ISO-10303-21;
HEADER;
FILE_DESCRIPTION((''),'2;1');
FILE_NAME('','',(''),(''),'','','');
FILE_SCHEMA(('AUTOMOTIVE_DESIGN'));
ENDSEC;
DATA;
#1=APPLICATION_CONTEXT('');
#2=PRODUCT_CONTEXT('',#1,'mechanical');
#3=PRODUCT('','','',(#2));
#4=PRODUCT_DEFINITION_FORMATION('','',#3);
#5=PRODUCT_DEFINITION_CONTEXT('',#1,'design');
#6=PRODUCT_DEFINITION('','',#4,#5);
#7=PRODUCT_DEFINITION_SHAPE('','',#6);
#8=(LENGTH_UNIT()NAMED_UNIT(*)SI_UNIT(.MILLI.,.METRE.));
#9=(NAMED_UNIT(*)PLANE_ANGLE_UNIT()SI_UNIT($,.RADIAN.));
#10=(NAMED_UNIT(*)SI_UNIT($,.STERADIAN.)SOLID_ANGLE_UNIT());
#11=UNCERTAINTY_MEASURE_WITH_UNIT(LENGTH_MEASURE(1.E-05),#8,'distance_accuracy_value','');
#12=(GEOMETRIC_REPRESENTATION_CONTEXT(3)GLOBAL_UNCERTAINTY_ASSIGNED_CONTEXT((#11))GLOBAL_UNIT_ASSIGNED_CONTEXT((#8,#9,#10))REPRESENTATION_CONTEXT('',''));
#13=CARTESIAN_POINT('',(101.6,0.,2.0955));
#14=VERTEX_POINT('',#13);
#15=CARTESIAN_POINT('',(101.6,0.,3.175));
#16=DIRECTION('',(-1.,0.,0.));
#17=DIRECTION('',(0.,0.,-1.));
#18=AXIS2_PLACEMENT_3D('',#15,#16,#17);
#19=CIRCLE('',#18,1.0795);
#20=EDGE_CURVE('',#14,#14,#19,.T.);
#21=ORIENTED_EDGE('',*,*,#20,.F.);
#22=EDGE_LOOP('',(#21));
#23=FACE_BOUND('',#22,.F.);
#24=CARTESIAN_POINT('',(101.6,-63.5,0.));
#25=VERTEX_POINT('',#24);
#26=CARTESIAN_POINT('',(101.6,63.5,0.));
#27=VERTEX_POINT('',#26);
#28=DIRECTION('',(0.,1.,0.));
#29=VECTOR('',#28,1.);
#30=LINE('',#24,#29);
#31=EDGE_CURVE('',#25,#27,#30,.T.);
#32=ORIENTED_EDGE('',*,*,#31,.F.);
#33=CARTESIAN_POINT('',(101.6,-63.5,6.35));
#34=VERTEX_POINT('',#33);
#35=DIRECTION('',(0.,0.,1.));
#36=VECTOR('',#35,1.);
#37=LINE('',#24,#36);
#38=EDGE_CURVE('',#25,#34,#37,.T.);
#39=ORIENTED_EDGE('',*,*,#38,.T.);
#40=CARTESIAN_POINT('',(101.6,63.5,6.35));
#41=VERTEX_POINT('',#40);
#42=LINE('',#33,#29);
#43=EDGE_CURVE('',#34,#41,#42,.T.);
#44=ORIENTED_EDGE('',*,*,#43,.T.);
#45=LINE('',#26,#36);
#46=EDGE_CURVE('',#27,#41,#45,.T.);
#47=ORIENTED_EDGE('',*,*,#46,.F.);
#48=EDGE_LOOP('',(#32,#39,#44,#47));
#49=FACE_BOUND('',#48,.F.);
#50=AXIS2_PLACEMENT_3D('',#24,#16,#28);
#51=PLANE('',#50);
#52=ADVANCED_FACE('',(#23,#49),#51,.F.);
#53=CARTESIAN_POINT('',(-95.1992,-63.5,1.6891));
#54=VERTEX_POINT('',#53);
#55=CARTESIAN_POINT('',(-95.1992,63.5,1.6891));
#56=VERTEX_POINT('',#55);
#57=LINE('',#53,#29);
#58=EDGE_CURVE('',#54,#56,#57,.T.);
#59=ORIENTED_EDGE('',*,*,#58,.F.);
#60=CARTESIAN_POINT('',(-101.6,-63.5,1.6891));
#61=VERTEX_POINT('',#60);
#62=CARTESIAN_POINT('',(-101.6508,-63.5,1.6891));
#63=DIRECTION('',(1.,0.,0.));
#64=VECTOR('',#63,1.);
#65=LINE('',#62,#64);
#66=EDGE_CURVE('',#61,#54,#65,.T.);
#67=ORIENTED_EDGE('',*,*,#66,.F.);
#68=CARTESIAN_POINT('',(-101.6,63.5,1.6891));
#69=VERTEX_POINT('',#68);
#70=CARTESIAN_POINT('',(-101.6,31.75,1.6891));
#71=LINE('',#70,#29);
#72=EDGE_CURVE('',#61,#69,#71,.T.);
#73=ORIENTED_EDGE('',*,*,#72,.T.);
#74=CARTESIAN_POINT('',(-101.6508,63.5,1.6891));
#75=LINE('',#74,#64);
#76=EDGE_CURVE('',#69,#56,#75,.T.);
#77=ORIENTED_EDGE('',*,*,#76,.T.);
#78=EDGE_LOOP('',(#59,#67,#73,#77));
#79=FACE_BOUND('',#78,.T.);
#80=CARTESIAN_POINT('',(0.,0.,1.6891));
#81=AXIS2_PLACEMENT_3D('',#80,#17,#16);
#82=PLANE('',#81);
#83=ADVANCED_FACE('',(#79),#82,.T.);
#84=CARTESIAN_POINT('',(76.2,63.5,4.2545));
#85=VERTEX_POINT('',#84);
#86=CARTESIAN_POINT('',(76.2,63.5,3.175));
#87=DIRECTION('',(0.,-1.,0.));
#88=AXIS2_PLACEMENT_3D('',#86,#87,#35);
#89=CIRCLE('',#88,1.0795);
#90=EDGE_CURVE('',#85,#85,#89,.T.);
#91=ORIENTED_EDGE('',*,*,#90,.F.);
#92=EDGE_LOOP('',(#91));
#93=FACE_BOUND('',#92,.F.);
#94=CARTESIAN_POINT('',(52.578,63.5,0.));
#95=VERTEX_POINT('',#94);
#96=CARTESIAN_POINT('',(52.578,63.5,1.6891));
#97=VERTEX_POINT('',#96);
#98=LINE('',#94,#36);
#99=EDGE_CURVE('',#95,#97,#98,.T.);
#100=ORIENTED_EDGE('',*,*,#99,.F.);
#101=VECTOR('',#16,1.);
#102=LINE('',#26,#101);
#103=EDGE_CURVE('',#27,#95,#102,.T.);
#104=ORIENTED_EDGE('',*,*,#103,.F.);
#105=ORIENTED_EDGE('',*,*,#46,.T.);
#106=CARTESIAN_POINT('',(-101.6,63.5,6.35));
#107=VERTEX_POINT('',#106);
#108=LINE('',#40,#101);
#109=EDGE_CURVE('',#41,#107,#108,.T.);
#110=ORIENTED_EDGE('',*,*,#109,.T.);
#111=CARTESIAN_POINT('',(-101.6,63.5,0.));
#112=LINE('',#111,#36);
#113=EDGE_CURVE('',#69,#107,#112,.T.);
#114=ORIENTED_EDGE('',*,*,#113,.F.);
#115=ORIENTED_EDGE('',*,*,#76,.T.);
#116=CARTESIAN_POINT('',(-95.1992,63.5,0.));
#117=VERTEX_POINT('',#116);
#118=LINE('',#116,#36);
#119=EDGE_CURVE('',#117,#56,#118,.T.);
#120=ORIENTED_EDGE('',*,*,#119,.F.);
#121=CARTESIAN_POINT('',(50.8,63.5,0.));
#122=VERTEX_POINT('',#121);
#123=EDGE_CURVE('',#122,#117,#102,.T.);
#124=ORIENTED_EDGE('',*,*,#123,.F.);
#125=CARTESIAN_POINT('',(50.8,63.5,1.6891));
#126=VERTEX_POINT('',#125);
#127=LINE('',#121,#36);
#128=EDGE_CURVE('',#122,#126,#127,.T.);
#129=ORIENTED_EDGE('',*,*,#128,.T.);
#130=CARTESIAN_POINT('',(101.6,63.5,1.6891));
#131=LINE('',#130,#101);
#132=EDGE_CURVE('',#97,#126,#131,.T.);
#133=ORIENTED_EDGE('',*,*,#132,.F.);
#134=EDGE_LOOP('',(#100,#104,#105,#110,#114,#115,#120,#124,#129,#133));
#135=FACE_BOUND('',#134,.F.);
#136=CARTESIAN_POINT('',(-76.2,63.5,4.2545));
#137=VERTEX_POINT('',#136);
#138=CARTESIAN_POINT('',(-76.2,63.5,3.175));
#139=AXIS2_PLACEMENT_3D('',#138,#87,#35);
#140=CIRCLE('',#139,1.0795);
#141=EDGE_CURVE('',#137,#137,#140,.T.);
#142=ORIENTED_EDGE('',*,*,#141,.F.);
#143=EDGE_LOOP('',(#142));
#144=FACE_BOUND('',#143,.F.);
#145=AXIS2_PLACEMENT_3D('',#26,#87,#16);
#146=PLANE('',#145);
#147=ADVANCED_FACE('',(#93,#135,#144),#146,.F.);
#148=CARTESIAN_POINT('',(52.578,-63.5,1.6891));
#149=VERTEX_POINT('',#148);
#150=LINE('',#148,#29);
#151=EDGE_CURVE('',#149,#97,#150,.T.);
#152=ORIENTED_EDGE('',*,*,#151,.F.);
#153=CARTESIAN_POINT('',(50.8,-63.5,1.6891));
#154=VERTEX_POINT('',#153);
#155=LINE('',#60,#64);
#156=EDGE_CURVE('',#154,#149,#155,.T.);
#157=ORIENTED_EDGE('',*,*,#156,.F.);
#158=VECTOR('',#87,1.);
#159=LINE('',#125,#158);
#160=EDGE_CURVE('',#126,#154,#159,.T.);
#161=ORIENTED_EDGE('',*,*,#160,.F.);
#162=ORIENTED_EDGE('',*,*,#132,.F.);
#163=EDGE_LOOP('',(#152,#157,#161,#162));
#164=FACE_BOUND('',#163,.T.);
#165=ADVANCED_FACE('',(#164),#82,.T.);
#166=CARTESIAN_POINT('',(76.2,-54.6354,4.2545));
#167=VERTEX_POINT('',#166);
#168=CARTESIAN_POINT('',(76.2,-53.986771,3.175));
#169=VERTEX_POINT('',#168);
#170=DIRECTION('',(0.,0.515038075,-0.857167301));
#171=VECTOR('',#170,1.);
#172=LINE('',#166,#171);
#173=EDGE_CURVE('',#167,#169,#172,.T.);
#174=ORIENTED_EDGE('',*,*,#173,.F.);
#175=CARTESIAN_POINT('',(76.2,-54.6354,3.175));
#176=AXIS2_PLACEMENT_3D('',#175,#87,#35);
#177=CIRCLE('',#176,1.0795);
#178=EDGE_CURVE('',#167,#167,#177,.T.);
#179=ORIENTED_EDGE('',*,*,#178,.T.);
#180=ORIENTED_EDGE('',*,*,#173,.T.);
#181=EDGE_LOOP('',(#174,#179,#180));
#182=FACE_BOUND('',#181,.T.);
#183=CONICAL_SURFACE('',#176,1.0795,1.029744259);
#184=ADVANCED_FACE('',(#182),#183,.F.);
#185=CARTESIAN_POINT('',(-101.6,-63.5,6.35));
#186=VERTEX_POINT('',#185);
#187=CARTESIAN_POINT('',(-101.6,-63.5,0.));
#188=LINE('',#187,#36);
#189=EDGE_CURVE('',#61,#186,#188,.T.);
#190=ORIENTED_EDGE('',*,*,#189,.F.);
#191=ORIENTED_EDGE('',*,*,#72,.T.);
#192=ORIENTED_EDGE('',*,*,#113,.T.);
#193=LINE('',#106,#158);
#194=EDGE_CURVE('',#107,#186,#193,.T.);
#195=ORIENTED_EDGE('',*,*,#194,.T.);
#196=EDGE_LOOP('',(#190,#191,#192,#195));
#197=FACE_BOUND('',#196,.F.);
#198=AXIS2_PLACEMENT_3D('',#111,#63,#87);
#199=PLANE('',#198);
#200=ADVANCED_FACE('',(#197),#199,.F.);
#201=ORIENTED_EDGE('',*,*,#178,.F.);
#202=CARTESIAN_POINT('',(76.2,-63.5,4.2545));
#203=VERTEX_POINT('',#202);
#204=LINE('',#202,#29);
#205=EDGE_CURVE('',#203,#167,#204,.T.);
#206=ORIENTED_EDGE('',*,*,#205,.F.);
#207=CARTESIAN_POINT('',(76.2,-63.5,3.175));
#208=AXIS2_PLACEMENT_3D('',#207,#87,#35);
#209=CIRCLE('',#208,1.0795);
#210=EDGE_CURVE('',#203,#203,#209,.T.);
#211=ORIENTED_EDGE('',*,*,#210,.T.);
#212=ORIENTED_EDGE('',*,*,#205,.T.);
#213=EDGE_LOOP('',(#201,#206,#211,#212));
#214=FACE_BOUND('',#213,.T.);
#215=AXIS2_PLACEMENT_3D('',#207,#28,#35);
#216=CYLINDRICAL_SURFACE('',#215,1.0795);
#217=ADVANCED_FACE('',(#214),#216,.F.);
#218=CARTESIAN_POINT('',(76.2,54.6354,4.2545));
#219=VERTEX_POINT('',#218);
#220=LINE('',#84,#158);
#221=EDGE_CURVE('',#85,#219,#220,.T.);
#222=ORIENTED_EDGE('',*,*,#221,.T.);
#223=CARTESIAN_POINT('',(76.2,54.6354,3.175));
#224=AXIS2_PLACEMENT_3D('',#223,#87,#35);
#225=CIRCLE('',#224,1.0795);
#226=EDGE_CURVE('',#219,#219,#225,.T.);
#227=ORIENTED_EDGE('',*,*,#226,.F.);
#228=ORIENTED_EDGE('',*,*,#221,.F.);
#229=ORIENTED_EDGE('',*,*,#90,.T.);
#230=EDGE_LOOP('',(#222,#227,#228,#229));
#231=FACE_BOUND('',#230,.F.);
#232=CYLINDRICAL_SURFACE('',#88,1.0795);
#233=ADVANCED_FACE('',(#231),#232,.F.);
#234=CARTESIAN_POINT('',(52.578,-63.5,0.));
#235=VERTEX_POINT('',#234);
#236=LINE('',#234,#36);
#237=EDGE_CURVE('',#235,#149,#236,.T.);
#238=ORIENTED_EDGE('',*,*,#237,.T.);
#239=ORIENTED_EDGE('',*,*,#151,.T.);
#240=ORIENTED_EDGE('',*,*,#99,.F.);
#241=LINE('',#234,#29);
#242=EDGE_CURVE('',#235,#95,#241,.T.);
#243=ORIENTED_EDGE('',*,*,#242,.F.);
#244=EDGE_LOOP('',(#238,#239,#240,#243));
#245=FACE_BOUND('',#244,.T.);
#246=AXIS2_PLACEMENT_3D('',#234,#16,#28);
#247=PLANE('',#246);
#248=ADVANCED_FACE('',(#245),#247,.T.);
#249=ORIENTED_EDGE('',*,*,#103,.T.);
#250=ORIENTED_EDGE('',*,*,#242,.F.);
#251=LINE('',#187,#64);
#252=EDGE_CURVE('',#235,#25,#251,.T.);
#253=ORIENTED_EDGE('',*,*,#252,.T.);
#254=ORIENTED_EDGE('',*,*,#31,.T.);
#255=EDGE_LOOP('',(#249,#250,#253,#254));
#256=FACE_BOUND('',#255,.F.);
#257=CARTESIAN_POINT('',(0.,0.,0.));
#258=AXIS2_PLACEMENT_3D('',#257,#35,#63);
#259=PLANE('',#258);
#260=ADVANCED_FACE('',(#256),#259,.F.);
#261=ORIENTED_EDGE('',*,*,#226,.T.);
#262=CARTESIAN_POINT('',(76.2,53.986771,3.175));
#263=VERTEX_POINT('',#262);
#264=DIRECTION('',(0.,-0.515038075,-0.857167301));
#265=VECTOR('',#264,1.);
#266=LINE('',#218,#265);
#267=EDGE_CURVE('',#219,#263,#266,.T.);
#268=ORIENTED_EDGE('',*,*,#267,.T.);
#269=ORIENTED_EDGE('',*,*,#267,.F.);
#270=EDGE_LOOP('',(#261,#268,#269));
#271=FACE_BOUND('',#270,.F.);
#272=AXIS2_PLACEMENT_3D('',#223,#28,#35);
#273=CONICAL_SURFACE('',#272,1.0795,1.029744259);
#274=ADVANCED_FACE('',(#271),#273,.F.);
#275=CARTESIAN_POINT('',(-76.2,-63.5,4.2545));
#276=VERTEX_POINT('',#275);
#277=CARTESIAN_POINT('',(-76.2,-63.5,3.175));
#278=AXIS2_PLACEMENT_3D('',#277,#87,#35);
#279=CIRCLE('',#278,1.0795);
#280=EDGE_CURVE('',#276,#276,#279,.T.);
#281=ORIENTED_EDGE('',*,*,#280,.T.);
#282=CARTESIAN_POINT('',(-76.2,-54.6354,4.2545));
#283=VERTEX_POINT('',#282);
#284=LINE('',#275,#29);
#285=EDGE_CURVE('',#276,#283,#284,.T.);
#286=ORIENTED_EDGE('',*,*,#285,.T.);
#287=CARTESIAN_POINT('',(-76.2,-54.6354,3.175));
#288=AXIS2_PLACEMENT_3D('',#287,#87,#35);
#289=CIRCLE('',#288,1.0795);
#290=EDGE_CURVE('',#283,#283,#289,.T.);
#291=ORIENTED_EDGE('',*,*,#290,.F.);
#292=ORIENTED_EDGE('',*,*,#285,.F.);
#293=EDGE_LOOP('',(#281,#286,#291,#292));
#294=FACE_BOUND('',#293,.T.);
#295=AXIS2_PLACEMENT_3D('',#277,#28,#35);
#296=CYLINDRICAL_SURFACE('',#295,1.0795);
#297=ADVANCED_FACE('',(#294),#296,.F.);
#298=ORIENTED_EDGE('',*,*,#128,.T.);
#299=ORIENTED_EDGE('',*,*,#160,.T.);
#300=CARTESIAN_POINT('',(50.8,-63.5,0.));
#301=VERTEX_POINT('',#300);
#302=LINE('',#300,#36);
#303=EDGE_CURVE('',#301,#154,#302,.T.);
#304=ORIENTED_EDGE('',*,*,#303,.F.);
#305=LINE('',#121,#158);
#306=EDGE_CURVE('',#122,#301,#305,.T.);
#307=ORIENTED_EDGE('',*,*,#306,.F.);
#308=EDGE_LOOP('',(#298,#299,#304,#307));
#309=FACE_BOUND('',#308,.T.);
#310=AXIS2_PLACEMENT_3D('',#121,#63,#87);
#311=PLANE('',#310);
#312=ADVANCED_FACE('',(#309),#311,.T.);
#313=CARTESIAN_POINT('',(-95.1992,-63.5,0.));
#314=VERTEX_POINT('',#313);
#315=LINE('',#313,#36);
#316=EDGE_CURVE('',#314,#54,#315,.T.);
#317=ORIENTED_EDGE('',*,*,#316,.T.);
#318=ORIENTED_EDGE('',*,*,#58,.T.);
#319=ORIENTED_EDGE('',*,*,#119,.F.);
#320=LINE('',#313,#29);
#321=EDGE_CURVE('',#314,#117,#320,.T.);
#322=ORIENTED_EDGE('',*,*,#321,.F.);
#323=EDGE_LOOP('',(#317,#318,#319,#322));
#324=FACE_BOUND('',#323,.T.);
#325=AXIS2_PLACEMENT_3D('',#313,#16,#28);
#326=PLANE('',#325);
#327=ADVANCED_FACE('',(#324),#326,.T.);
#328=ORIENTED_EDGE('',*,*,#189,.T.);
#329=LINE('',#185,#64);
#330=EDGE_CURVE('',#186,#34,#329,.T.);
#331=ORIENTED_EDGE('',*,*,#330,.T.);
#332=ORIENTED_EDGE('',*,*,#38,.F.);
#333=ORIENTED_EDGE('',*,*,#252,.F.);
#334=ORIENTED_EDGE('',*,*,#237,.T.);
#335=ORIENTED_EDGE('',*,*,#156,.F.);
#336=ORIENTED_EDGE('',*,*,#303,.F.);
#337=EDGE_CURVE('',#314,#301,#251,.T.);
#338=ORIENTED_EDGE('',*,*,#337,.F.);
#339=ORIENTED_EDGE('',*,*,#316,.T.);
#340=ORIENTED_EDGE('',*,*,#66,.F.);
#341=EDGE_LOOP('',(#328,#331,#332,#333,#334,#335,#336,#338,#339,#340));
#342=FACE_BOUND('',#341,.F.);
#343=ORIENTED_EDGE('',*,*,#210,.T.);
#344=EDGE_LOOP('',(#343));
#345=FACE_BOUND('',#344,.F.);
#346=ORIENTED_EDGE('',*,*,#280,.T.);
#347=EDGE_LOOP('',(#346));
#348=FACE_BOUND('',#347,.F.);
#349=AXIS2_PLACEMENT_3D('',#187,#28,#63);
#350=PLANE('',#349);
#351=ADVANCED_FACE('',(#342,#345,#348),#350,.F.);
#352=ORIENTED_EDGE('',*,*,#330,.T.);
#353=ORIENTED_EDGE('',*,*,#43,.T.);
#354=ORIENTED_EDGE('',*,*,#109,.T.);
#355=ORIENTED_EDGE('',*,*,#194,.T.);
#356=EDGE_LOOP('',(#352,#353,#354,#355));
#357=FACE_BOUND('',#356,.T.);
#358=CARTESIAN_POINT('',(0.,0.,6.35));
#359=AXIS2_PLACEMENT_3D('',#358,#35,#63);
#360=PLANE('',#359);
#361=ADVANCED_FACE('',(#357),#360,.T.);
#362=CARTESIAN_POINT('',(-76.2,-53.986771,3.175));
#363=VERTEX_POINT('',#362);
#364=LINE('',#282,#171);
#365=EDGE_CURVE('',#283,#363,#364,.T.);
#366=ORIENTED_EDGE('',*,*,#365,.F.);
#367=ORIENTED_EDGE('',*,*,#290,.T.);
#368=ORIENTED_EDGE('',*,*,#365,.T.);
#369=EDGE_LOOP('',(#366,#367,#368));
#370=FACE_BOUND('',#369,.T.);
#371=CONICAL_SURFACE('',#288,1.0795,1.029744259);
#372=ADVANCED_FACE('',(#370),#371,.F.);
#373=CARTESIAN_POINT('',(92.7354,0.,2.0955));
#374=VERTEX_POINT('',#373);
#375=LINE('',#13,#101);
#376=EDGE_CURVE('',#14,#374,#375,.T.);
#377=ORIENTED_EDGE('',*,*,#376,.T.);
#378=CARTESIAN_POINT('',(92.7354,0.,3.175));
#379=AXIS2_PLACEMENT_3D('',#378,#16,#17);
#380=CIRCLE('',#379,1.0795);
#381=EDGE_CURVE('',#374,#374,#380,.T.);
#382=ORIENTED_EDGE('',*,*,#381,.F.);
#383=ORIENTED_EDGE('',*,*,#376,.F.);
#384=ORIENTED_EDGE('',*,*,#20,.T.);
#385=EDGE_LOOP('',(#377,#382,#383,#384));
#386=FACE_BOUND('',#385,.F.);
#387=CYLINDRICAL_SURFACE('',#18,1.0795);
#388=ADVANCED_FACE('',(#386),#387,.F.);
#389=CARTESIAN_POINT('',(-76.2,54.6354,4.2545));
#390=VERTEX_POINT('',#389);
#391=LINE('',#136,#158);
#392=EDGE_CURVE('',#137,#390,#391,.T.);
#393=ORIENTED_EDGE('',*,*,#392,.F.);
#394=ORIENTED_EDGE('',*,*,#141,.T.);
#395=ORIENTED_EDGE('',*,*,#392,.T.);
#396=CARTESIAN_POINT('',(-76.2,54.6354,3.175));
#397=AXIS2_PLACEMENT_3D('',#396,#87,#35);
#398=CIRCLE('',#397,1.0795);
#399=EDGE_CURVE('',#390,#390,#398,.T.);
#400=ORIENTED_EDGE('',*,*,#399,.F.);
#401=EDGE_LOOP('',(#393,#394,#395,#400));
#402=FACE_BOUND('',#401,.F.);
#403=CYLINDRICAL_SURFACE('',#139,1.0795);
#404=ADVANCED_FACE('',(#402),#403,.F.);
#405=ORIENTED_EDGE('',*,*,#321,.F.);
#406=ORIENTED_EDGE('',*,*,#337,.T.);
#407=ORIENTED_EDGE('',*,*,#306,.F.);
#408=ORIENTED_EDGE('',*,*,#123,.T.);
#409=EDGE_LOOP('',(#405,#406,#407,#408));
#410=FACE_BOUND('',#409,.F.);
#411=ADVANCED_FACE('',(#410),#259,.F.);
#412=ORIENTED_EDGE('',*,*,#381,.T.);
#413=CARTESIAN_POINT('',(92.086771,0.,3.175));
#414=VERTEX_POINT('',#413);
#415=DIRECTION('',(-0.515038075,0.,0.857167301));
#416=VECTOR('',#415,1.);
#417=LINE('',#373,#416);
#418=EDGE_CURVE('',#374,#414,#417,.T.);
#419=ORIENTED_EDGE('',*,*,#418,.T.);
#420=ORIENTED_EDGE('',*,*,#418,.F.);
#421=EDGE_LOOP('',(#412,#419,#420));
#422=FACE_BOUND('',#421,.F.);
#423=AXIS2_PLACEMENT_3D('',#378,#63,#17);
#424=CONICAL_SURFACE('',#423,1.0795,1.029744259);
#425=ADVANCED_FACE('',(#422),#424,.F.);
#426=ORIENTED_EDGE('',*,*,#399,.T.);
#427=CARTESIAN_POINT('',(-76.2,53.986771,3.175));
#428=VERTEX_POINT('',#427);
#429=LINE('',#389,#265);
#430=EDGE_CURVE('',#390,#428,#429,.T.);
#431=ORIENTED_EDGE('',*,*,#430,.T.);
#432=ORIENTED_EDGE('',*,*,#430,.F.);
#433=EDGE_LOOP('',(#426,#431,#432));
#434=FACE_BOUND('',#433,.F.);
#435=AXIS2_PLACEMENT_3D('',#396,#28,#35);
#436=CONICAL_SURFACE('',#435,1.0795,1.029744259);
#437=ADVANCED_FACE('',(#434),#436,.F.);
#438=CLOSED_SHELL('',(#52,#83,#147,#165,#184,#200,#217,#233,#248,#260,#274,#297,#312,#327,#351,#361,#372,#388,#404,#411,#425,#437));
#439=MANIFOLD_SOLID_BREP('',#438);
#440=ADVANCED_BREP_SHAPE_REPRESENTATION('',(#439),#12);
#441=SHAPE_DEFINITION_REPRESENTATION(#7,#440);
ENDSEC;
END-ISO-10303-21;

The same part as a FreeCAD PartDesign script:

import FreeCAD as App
import Part
import Sketcher
Q = App.Units.Quantity

doc = App.newDocument("Part")
body = doc.addObject("PartDesign::Body", "Body")

# Sketch on XY plane
sketch1 = doc.addObject("Sketcher::SketchObject", "Sketch")
body.addObject(sketch1)
sketch1.AttachmentSupport = (doc.XY_Plane, [""])
sketch1.MapMode = "FlatFace"
sketch1.addGeometry([
    Part.LineSegment(App.Vector(-102, 64, 0), App.Vector(-102, -64, 0)),
    Part.LineSegment(App.Vector(-102, -64, 0), App.Vector(102, -64, 0)),
    Part.LineSegment(App.Vector(102, -64, 0), App.Vector(102, 64, 0)),
    Part.LineSegment(App.Vector(102, 64, 0), App.Vector(-102, 64, 0)),
], False)
sketch1.addConstraint([
    Sketcher.Constraint("Coincident", 0, 2, 1, 1),
    Sketcher.Constraint("Coincident", 1, 2, 2, 1),
    Sketcher.Constraint("Coincident", 2, 2, 3, 1),
    Sketcher.Constraint("Coincident", 3, 2, 0, 1),
    Sketcher.Constraint("Vertical", 0),
    Sketcher.Constraint("Horizontal", 1),
    Sketcher.Constraint("Vertical", 2),
    Sketcher.Constraint("Horizontal", 3),
    Sketcher.Constraint("Symmetric", 0, 2, 2, 2, -1, 1),
    Sketcher.Constraint("DistanceX", 1, 1, 1, 2, Q("8 in")),
    Sketcher.Constraint("DistanceY", 0, 2, 0, 1, Q("5 in")),
])
pad1 = doc.addObject("PartDesign::Pad", "Pad")
body.addObject(pad1)
pad1.Profile = sketch1
pad1.Length = Q("0.25 in")

# Sketch on XY plane
sketch2 = doc.addObject("Sketcher::SketchObject", "Sketch001")
body.addObject(sketch2)
sketch2.AttachmentSupport = (doc.XY_Plane, [""])
sketch2.MapMode = "FlatFace"
sketch2.addGeometry([
    Part.LineSegment(App.Vector(50.8, 63.5, 0), App.Vector(52.6, 63.5, 0)),
    Part.LineSegment(App.Vector(52.6, 63.5, 0), App.Vector(52.6, -63.5, 0)),
    Part.LineSegment(App.Vector(52.6, -63.5, 0), App.Vector(50.8, -63.5, 0)),
    Part.LineSegment(App.Vector(50.8, -63.5, 0), App.Vector(50.8, 63.5, 0)),
], False)
sketch2.addConstraint([
    Sketcher.Constraint("Coincident", 0, 2, 1, 1),
    Sketcher.Constraint("Coincident", 1, 2, 2, 1),
    Sketcher.Constraint("Coincident", 2, 2, 3, 1),
    Sketcher.Constraint("Coincident", 3, 2, 0, 1),
    Sketcher.Constraint("Horizontal", 0),
    Sketcher.Constraint("Vertical", 1),
    Sketcher.Constraint("Horizontal", 2),
    Sketcher.Constraint("Vertical", 3),
    Sketcher.Constraint("DistanceX", 0, 1, 0, 2, Q("0.07 in")),
    Sketcher.Constraint("DistanceY", 1, 2, 1, 1, Q("5 in")),
    Sketcher.Constraint("DistanceX", -1, 1, 2, 2, Q("2 in")),
    Sketcher.Constraint("DistanceY", -1, 1, 0, 2, Q("2.5 in")),
])
pocket1 = doc.addObject("PartDesign::Pocket", "Pocket")
body.addObject(pocket1)
pocket1.Profile = sketch2
pocket1.Length = Q("0.0665 in")
pocket1.Reversed = True

# Sketch on XZ plane
sketch3 = doc.addObject("Sketcher::SketchObject", "Sketch002")
body.addObject(sketch3)
sketch3.AttachmentSupport = (doc.XZ_Plane, [""])
sketch3.MapMode = "FlatFace"
sketch3.AttachmentOffset = App.Placement(App.Vector(0, 0, -2.5 * 25.4), App.Rotation())
sketch3.addGeometry([
    Part.Circle(App.Vector(76.2, 3.2, 0), App.Vector(0, 0, 1), 1.1),
    Part.Circle(App.Vector(-76.2, 3.2, 0), App.Vector(0, 0, 1), 1.1),
], False)
sketch3.addConstraint([
    Sketcher.Constraint("Equal", 0, 1),
    Sketcher.Constraint("Symmetric", 0, 3, 1, 3, -2),
    Sketcher.Constraint("Diameter", 0, Q("0.085 in")),
    Sketcher.Constraint("DistanceX", -1, 1, 0, 3, Q("3 in")),
    Sketcher.Constraint("DistanceY", -1, 1, 0, 3, Q("0.125 in")),
])
doc.recompute()
hole = doc.addObject("PartDesign::Hole", "Hole")
body.addObject(hole)
hole.Profile = sketch3
hole.ThreadType = "None"
hole.Diameter = Q("0.085 in")
hole.DepthType = "Dimension"
hole.Depth = Q("0.349 in")
hole.DrillPoint = "Angled"
hole.DrillPointAngle = 118
hole.Reversed = True
doc.recompute()

mirrored = doc.addObject("PartDesign::Mirrored", "Mirrored")
body.addObject(mirrored)
mirrored.Originals = [hole]
mirrored.MirrorPlane = (doc.XZ_Plane, [""])
body.Tip = mirrored

# Sketch on XY plane
sketch4 = doc.addObject("Sketcher::SketchObject", "Sketch003")
body.addObject(sketch4)
sketch4.AttachmentSupport = (doc.XY_Plane, [""])
sketch4.MapMode = "FlatFace"
sketch4.addGeometry([
    Part.LineSegment(App.Vector(-95, 64, 0), App.Vector(-95, -64, 0)),
    Part.LineSegment(App.Vector(-95, -64, 0), App.Vector(-102, -64, 0)),
    Part.LineSegment(App.Vector(-102, -64, 0), App.Vector(-102, 64, 0)),
    Part.LineSegment(App.Vector(-102, 64, 0), App.Vector(-95, 64, 0)),
], False)
sketch4.addConstraint([
    Sketcher.Constraint("Coincident", 0, 2, 1, 1),
    Sketcher.Constraint("Coincident", 1, 2, 2, 1),
    Sketcher.Constraint("Coincident", 2, 2, 3, 1),
    Sketcher.Constraint("Coincident", 3, 2, 0, 1),
    Sketcher.Constraint("Vertical", 0),
    Sketcher.Constraint("Horizontal", 1),
    Sketcher.Constraint("Vertical", 2),
    Sketcher.Constraint("Horizontal", 3),
    Sketcher.Constraint("DistanceX", 1, 2, 1, 1, Q("0.254 in")),
    Sketcher.Constraint("DistanceY", 0, 2, 0, 1, Q("5 in")),
    Sketcher.Constraint("DistanceY", 0, 2, -1, 1, Q("2.5 in")),
    Sketcher.Constraint("DistanceX", 0, 2, -1, 1, Q("3.748 in")),
])
pocket2 = doc.addObject("PartDesign::Pocket", "Pocket001")
body.addObject(pocket2)
pocket2.Profile = sketch4
pocket2.Length = Q("0.0665 in")
pocket2.Reversed = True

# Sketch on YZ plane
sketch5 = doc.addObject("Sketcher::SketchObject", "Sketch004")
body.addObject(sketch5)
sketch5.AttachmentSupport = (doc.YZ_Plane, [""])
sketch5.MapMode = "FlatFace"
sketch5.AttachmentOffset = App.Placement(App.Vector(0, 0, 4 * 25.4), App.Rotation())
sketch5.addGeometry(Part.Circle(App.Vector(0, 3.2, 0), App.Vector(0, 0, 1), 1.1), False)
sketch5.addConstraint([
    Sketcher.Constraint("PointOnObject", 0, 3, -2),
    Sketcher.Constraint("Diameter", 0, Q("0.085 in")),
    Sketcher.Constraint("DistanceY", -1, 1, 0, 3, Q("0.125 in")),
])
doc.recompute()
hole2 = doc.addObject("PartDesign::Hole", "Hole001")
body.addObject(hole2)
hole2.Profile = sketch5
hole2.ThreadType = "None"
hole2.Diameter = Q("0.085 in")
hole2.DepthType = "Dimension"
hole2.Depth = Q("0.349 in")
hole2.DrillPoint = "Angled"
hole2.DrillPointAngle = 118

doc.recompute()
